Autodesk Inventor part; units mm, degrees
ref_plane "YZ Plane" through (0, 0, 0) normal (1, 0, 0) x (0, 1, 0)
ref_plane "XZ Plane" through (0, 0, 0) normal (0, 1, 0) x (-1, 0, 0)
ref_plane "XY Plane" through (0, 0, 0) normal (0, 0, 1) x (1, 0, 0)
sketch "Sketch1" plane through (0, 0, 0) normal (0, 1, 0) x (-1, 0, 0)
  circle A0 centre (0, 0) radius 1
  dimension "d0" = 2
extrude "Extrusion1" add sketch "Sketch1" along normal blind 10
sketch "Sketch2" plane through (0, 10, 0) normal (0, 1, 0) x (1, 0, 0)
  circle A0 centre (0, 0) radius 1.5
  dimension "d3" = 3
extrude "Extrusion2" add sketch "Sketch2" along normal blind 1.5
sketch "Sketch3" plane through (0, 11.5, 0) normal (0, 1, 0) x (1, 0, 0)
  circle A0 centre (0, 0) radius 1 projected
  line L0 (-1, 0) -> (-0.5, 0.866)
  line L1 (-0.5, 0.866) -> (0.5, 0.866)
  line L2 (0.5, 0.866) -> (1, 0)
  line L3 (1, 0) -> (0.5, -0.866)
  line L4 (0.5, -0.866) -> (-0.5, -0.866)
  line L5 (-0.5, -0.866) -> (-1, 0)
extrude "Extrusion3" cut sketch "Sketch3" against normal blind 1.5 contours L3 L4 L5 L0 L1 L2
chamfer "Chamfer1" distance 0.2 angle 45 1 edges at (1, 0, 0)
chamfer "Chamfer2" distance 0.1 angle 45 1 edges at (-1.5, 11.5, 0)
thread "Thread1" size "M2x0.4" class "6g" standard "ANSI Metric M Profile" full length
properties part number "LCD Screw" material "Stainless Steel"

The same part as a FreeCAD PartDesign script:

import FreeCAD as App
import Part
import Sketcher
from FreeCAD import Vector
Q = App.Units.Quantity


def edges_at(feature, points):
    """Names of the edges that pass closest to the given points."""
    edges = feature.Shape.Edges
    near = lambda p: min(range(len(edges)), key=lambda i: edges[i].distToShape(Part.Vertex(*p))[0])
    return sorted({f"Edge{near(p) + 1}" for p in points})

doc = App.newDocument("Part")
body = doc.addObject("PartDesign::Body", "Body")

sketch1 = doc.addObject("Sketcher::SketchObject", "Sketch")
body.addObject(sketch1)
sketch1.AttachmentSupport = (doc.XZ_Plane, [""])
sketch1.MapMode = "FlatFace"
sketch1.addGeometry(Part.Circle(Vector(0, 0, 0), Vector(0, 0, 1), 1), False)
sketch1.addConstraint([
    Sketcher.Constraint("Coincident", 0, 3, -1, 1),
    Sketcher.Constraint("Diameter", 0, Q("2 mm")),
])
pad1 = doc.addObject("PartDesign::Pad", "Pad")
body.addObject(pad1)
pad1.Profile = sketch1
pad1.Length = 10
pad1.Reversed = True

sketch2 = doc.addObject("Sketcher::SketchObject", "Sketch001")
body.addObject(sketch2)
sketch2.AttachmentSupport = (doc.XZ_Plane, [""])
sketch2.MapMode = "FlatFace"
sketch2.AttachmentOffset = App.Placement(Vector(0, 0, -10), App.Rotation())
sketch2.addGeometry(Part.Circle(Vector(0, 0, 0), Vector(0, 0, 1), 1.5), False)
sketch2.addConstraint([
    Sketcher.Constraint("Coincident", 0, 3, -1, 1),
    Sketcher.Constraint("Diameter", 0, Q("3 mm")),
])
pad2 = doc.addObject("PartDesign::Pad", "Pad001")
body.addObject(pad2)
pad2.Profile = sketch2
pad2.Length = 1.5
pad2.Reversed = True

sketch3 = doc.addObject("Sketcher::SketchObject", "Sketch002")
body.addObject(sketch3)
sketch3.AttachmentSupport = (doc.XZ_Plane, [""])
sketch3.MapMode = "FlatFace"
sketch3.AttachmentOffset = App.Placement(Vector(0, 0, -11.5), App.Rotation())
sketch3.addGeometry([
    Part.LineSegment(Vector(0.5, 0.9, 0), Vector(1, 0, 0)),
    Part.LineSegment(Vector(1, 0, 0), Vector(0.5, -0.9, 0)),
    Part.LineSegment(Vector(0.5, -0.9, 0), Vector(-0.5, -0.9, 0)),
    Part.LineSegment(Vector(-0.5, -0.9, 0), Vector(-1, 0, 0)),
    Part.LineSegment(Vector(-1, 0, 0), Vector(-0.5, 0.9, 0)),
    Part.LineSegment(Vector(-0.5, 0.9, 0), Vector(0.5, 0.9, 0)),
], False)
sketch3.addConstraint([
    Sketcher.Constraint("Coincident", 0, 2, 1, 1),
    Sketcher.Constraint("Coincident", 1, 2, 2, 1),
    Sketcher.Constraint("Coincident", 2, 2, 3, 1),
    Sketcher.Constraint("Coincident", 3, 2, 4, 1),
    Sketcher.Constraint("Coincident", 4, 2, 5, 1),
    Sketcher.Constraint("Coincident", 5, 2, 0, 1),
    Sketcher.Constraint("Horizontal", 2),
    Sketcher.Constraint("Horizontal", 5),
    Sketcher.Constraint("Symmetric", 0, 2, 3, 2, -1, 1),
    Sketcher.Constraint("Symmetric", 1, 2, 4, 2, -1, 1),
    Sketcher.Constraint("PointOnObject", 0, 2, -1),
    Sketcher.Constraint("Parallel", 0, 3),
    Sketcher.Constraint("Vertical", 2, 2, 4, 2),
    Sketcher.Constraint("DistanceX", 2, 2, 2, 1, Q("1 mm")),
    Sketcher.Constraint("Angle", 0, Q("-59.9993 deg")),
    Sketcher.Constraint("Distance", 0, Q("1 mm")),
])
pocket1 = doc.addObject("PartDesign::Pocket", "Pocket")
body.addObject(pocket1)
pocket1.Profile = sketch3
pocket1.Length = 1.5
pocket1.Reversed = True
doc.recompute()

chamfer = doc.addObject("PartDesign::Chamfer", "Chamfer")
body.addObject(chamfer)
chamfer.Base = (pocket1, edges_at(pocket1, [(1, 0, 0)]))
chamfer.Size = 0.2
doc.recompute()

chamfer2 = doc.addObject("PartDesign::Chamfer", "Chamfer001")
body.addObject(chamfer2)
chamfer2.Base = (chamfer, edges_at(chamfer, [(-1.5, 11.5, 0)]))
chamfer2.Size = 0.1

doc.recompute()
